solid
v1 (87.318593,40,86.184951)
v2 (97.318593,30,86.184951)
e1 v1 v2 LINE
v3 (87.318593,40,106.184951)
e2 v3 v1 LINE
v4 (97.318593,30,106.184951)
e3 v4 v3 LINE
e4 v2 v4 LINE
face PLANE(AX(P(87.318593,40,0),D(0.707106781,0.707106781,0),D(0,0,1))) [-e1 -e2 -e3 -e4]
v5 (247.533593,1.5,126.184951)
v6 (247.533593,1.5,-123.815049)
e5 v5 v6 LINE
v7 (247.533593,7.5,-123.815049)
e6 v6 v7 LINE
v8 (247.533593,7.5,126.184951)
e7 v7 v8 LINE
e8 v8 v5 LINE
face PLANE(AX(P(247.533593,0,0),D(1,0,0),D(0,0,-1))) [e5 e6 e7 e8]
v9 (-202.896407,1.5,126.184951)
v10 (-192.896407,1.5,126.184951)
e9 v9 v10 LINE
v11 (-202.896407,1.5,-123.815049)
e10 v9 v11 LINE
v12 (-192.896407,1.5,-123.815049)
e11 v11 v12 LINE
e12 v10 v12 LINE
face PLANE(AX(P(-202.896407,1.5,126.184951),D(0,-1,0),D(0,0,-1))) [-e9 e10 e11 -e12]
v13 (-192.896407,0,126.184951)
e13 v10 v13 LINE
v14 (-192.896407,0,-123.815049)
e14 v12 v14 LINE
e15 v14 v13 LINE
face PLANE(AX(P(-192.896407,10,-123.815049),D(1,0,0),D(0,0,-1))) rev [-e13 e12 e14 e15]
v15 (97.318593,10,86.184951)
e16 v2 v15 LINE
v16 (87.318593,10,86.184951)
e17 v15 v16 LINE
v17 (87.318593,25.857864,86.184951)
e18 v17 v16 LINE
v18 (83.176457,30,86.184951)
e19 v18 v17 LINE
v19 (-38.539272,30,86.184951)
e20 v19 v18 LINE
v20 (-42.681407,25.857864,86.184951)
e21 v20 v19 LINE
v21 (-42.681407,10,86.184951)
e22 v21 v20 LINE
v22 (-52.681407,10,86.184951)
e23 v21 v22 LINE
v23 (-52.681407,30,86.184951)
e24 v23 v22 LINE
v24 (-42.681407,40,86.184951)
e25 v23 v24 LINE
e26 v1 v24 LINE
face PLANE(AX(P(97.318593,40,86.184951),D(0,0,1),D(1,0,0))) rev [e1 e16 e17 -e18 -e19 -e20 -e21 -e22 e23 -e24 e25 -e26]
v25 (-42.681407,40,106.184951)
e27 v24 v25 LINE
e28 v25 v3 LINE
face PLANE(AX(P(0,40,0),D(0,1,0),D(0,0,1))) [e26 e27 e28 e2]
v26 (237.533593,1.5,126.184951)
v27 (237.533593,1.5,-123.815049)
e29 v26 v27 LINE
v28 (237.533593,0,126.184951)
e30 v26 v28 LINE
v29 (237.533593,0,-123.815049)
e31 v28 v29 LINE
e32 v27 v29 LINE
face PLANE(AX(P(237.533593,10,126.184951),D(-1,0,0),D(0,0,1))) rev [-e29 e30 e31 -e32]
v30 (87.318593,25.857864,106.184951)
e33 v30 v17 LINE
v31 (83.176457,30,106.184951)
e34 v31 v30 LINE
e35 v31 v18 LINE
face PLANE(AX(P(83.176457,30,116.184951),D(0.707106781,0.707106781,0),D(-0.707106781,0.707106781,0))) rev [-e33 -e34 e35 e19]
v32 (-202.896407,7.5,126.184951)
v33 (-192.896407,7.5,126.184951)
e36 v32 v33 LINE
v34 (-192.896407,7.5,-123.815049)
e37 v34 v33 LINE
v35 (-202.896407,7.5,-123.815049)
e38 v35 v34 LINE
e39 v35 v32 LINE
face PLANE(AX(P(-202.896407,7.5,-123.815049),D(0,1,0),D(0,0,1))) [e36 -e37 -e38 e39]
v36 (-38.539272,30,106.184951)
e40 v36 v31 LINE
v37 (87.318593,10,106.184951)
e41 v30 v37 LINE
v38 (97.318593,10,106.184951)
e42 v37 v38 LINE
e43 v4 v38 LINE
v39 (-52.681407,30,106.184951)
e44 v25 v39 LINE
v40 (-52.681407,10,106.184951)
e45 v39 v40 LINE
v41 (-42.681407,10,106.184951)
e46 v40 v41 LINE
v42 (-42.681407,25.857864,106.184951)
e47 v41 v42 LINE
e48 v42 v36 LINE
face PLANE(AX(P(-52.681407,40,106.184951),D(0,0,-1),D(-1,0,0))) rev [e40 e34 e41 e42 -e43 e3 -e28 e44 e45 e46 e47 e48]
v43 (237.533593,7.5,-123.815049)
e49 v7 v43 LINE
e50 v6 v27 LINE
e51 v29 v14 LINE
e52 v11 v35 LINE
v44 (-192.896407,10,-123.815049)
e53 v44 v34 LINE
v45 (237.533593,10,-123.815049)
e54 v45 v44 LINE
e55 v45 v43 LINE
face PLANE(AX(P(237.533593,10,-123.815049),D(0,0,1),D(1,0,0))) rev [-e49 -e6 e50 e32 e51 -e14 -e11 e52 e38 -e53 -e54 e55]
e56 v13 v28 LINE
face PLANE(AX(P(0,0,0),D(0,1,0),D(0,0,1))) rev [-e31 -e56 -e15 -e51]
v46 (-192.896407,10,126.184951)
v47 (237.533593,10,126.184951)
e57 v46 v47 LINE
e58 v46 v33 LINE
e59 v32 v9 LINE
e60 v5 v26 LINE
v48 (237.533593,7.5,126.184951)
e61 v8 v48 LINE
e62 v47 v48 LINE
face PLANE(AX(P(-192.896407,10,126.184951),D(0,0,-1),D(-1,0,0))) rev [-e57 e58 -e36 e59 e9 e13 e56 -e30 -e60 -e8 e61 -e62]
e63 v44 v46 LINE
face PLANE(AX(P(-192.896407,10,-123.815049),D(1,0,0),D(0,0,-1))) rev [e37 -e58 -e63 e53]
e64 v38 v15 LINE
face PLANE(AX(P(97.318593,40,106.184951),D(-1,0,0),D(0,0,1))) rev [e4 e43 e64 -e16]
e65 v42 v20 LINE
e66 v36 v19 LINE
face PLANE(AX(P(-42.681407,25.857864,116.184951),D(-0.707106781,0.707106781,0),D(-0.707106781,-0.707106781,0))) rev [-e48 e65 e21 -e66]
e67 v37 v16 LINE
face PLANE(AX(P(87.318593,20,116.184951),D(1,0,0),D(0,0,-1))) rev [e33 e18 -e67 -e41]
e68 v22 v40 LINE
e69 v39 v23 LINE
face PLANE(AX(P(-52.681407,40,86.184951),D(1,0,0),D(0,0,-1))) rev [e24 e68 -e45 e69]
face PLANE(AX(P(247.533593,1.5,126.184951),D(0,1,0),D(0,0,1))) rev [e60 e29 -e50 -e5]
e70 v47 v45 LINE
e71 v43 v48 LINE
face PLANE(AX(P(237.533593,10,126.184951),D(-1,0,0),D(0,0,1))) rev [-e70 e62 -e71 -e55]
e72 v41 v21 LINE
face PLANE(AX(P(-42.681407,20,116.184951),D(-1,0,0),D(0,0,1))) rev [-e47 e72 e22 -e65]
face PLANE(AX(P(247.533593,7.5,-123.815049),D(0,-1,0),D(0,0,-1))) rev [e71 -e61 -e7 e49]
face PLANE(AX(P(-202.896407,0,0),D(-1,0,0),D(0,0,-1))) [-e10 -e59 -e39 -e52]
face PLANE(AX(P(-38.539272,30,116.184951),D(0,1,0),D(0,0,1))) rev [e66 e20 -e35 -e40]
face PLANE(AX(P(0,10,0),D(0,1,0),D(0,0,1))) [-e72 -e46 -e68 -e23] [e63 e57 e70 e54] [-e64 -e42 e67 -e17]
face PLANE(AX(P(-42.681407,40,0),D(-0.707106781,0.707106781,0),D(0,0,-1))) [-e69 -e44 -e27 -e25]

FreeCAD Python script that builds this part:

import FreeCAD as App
import Part
import Sketcher
from FreeCAD import Vector
Q = App.Units.Quantity


def edges_at(feature, points):
    """Names of the edges that pass closest to the given points."""
    edges = feature.Shape.Edges
    near = lambda p: min(range(len(edges)), key=lambda i: edges[i].distToShape(Part.Vertex(*p))[0])
    return sorted({f"Edge{near(p) + 1}" for p in points})

doc = App.newDocument("Part")
body = doc.addObject("PartDesign::Body", "Body")

sketch1 = body.newObject("Sketcher::SketchObject", "Sketch")
sketch1.AttachmentSupport = (doc.getObject("XZ_Plane"), [""])
sketch1.MapMode = "FlatFace"
sketch1.addGeometry(Part.LineSegment(Vector(-192.896407, -123.815049, 0), Vector(-192.896407, 126.184951, 0)), False)
sketch1.addGeometry(Part.LineSegment(Vector(-192.896407, 126.184951, 0), Vector(237.533593, 126.184951, 0)), False)
sketch1.addGeometry(Part.LineSegment(Vector(237.533593, 126.184951, 0), Vector(237.533593, -123.815049, 0)), False)
sketch1.addGeometry(Part.LineSegment(Vector(237.533593, -123.815049, 0), Vector(-192.896407, -123.815049, 0)), False)
sketch1.addConstraint(Sketcher.Constraint("Coincident", 0, 2, 1, 1))
sketch1.addConstraint(Sketcher.Constraint("Coincident", 1, 2, 2, 1))
sketch1.addConstraint(Sketcher.Constraint("Coincident", 2, 2, 3, 1))
sketch1.addConstraint(Sketcher.Constraint("Coincident", 3, 2, 0, 1))
sketch1.addConstraint(Sketcher.Constraint("Vertical", 0))
sketch1.addConstraint(Sketcher.Constraint("Horizontal", 1))
sketch1.addConstraint(Sketcher.Constraint("Vertical", 2))
sketch1.addConstraint(Sketcher.Constraint("Horizontal", 3))
sketch1.addConstraint(Sketcher.Constraint("DistanceY", 0, 1, 0, 2, Q("250 mm")))
sketch1.addConstraint(Sketcher.Constraint("DistanceX", 1, 1, 1, 2, Q("430.43 mm")))
sketch1.addConstraint(Sketcher.Constraint("DistanceY", -1, 1, 0, 2, Q("126.184951 mm")))
sketch1.addConstraint(Sketcher.Constraint("DistanceX", 0, 2, -1, 1, Q("192.896407 mm")))
pad1 = body.newObject("PartDesign::Pad", "Pad")
pad1.Profile = sketch1
pad1.Length = 10
pad1.Reversed = True

sketch2 = body.newObject("Sketcher::SketchObject", "Sketch001")
sketch2.AttachmentSupport = (doc.getObject("YZ_Plane"), [""])
sketch2.MapMode = "FlatFace"
sketch2.AttachmentOffset = App.Placement(Vector(0, 0, 237.533593), App.Rotation())
sketch2.addGeometry(Part.LineSegment(Vector(7.5, 126.184951, 0), Vector(1.5, 126.184951, 0)), False)
sketch2.addGeometry(Part.LineSegment(Vector(1.5, 126.184951, 0), Vector(1.5, -123.815049, 0)), False)
sketch2.addGeometry(Part.LineSegment(Vector(1.5, -123.815049, 0), Vector(7.5, -123.815049, 0)), False)
sketch2.addGeometry(Part.LineSegment(Vector(7.5, -123.815049, 0), Vector(7.5, 126.184951, 0)), False)
sketch2.addConstraint(Sketcher.Constraint("Coincident", 0, 2, 1, 1))
sketch2.addConstraint(Sketcher.Constraint("Coincident", 1, 2, 2, 1))
sketch2.addConstraint(Sketcher.Constraint("Coincident", 2, 2, 3, 1))
sketch2.addConstraint(Sketcher.Constraint("Coincident", 3, 2, 0, 1))
sketch2.addConstraint(Sketcher.Constraint("Horizontal", 0))
sketch2.addConstraint(Sketcher.Constraint("Vertical", 1))
sketch2.addConstraint(Sketcher.Constraint("Horizontal", 2))
sketch2.addConstraint(Sketcher.Constraint("Vertical", 3))
sketch2.addConstraint(Sketcher.Constraint("DistanceX", 0, 2, 0, 1, Q("6 mm")))
sketch2.addConstraint(Sketcher.Constraint("DistanceY", 1, 2, 1, 1, Q("250 mm")))
sketch2.addConstraint(Sketcher.Constraint("DistanceX", -1, 1, 0, 2, Q("1.5 mm")))
sketch2.addConstraint(Sketcher.Constraint("DistanceY", -1, 1, 0, 2, Q("126.184951 mm")))
pad2 = body.newObject("PartDesign::Pad", "Pad001")
pad2.Profile = sketch2
pad2.Length = 10
doc.recompute()

datumplane = body.newObject("PartDesign::Plane", "DatumPlane")
datumplane.AttachmentSupport = (doc.getObject("YZ_Plane"), [""])
datumplane.MapMode = "FlatFace"
datumplane.AttachmentOffset = App.Placement(Vector(0, 0, 22.318593), App.Rotation())
mirrored = body.newObject("PartDesign::Mirrored", "Mirrored")
mirrored.Originals = [pad2]
mirrored.MirrorPlane = (datumplane, [""])
body.Tip = mirrored

sketch3 = body.newObject("Sketcher::SketchObject", "Sketch002")
sketch3.AttachmentSupport = (doc.getObject("XZ_Plane"), [""])
sketch3.MapMode = "FlatFace"
sketch3.AttachmentOffset = App.Placement(Vector(0, 0, -10), App.Rotation())
sketch3.addGeometry(Part.LineSegment(Vector(-52.681407, 86.184951, 0), Vector(-52.681407, 106.184951, 0)), False)
sketch3.addGeometry(Part.LineSegment(Vector(-52.681407, 106.184951, 0), Vector(97.318593, 106.184951, 0)), False)
sketch3.addGeometry(Part.LineSegment(Vector(97.318593, 106.184951, 0), Vector(97.318593, 86.184951, 0)), False)
sketch3.addGeometry(Part.LineSegment(Vector(97.318593, 86.184951, 0), Vector(-52.681407, 86.184951, 0)), False)
sketch3.addConstraint(Sketcher.Constraint("Coincident", 0, 2, 1, 1))
sketch3.addConstraint(Sketcher.Constraint("Coincident", 1, 2, 2, 1))
sketch3.addConstraint(Sketcher.Constraint("Coincident", 2, 2, 3, 1))
sketch3.addConstraint(Sketcher.Constraint("Coincident", 3, 2, 0, 1))
sketch3.addConstraint(Sketcher.Constraint("Vertical", 0))
sketch3.addConstraint(Sketcher.Constraint("Horizontal", 1))
sketch3.addConstraint(Sketcher.Constraint("Vertical", 2))
sketch3.addConstraint(Sketcher.Constraint("Horizontal", 3))
sketch3.addConstraint(Sketcher.Constraint("DistanceX", 1, 1, 1, 2, Q("150 mm")))
sketch3.addConstraint(Sketcher.Constraint("DistanceY", 0, 1, 0, 2, Q("20 mm")))
sketch3.addConstraint(Sketcher.Constraint("DistanceY", -1, 1, 0, 2, Q("106.184951 mm")))
sketch3.addConstraint(Sketcher.Constraint("DistanceX", 0, 2, -1, 1, Q("52.681407 mm")))
pad3 = body.newObject("PartDesign::Pad", "Pad002")
pad3.Profile = sketch3
pad3.Length = 30
pad3.Reversed = True
doc.recompute()

chamfer = body.newObject("PartDesign::Chamfer", "Chamfer")
chamfer.Base = (pad3, edges_at(pad3, [(97.319, 40, 96.185)]))
chamfer.Size = 10
doc.recompute()

chamfer2 = body.newObject("PartDesign::Chamfer", "Chamfer001")
chamfer2.Base = (chamfer, edges_at(chamfer, [(-52.681, 40, 96.185)]))
chamfer2.Size = 10

sketch4 = body.newObject("Sketcher::SketchObject", "Sketch003")
sketch4.AttachmentSupport = (doc.getObject("XY_Plane"), [""])
sketch4.MapMode = "FlatFace"
sketch4.AttachmentOffset = App.Placement(Vector(0, 0, 86.184951), App.Rotation())
sketch4.addGeometry(Part.LineSegment(Vector(87.318593, 10, 0), Vector(-42.681407, 10, 0)), False)
sketch4.addGeometry(Part.LineSegment(Vector(-42.681407, 10, 0), Vector(-42.681407, 25.857864, 0)), False)
sketch4.addGeometry(Part.LineSegment(Vector(-42.681407, 25.857864, 0), Vector(-38.539272, 30, 0)), False)
sketch4.addGeometry(Part.LineSegment(Vector(-38.539272, 30, 0), Vector(83.176457, 30, 0)), False)
sketch4.addGeometry(Part.LineSegment(Vector(83.176457, 30, 0), Vector(87.318593, 25.857864, 0)), False)
sketch4.addGeometry(Part.LineSegment(Vector(87.318593, 25.857864, 0), Vector(87.318593, 10, 0)), False)
sketch4.addConstraint(Sketcher.Constraint("Coincident", 0, 2, 1, 1))
sketch4.addConstraint(Sketcher.Constraint("Coincident", 1, 2, 2, 1))
sketch4.addConstraint(Sketcher.Constraint("Coincident", 2, 2, 3, 1))
sketch4.addConstraint(Sketcher.Constraint("Coincident", 3, 2, 4, 1))
sketch4.addConstraint(Sketcher.Constraint("Coincident", 4, 2, 5, 1))
sketch4.addConstraint(Sketcher.Constraint("Coincident", 5, 2, 0, 1))
sketch4.addConstraint(Sketcher.Constraint("Horizontal", 0))
sketch4.addConstraint(Sketcher.Constraint("Vertical", 1))
sketch4.addConstraint(Sketcher.Constraint("Horizontal", 3))
sketch4.addConstraint(Sketcher.Constraint("Vertical", 5))
sketch4.addConstraint(Sketcher.Constraint("Perpendicular", 2, 4))
sketch4.addConstraint(Sketcher.Constraint("Horizontal", 1, 2, 4, 2))
sketch4.addConstraint(Sketcher.Constraint("Equal", 2, 4))
sketch4.addConstraint(Sketcher.Constraint("DistanceX", 0, 2, 0, 1, Q("130 mm")))
sketch4.addConstraint(Sketcher.Constraint("DistanceY", -1, 1, 0, 2, Q("10 mm")))
sketch4.addConstraint(Sketcher.Constraint("DistanceY", -1, 1, 2, 2, Q("30 mm")))
sketch4.addConstraint(Sketcher.Constraint("DistanceX", 3, 1, 3, 2, Q("121.715729 mm")))
sketch4.addConstraint(Sketcher.Constraint("DistanceX", 2, 2, -1, 1, Q("38.539272 mm")))
pocket1 = body.newObject("PartDesign::Pocket", "Pocket")
pocket1.Profile = sketch4
pocket1.Length = 30
pocket1.Reversed = True

doc.recompute()
